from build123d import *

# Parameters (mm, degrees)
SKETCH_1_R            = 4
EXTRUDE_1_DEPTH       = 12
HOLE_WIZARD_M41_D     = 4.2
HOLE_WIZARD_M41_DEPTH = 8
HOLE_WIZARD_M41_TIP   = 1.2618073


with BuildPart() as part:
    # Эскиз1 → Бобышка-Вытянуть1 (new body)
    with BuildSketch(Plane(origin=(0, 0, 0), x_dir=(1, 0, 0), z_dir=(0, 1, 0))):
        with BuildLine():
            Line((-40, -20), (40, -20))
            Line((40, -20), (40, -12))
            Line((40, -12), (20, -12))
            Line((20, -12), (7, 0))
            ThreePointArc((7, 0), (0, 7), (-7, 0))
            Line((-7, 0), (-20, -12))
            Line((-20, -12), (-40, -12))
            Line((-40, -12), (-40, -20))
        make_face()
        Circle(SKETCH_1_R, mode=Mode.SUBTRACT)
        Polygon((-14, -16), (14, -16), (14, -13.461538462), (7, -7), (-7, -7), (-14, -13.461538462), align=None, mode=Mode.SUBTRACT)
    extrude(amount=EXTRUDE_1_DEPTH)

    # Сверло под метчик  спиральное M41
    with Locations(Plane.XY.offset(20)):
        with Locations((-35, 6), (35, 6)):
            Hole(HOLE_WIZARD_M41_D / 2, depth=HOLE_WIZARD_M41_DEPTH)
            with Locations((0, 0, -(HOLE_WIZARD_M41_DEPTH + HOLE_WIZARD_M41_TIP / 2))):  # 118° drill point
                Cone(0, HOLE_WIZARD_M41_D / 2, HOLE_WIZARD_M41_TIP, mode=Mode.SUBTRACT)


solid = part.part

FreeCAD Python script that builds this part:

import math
import FreeCAD as App
import Part
import Sketcher

V = App.Vector
Q = App.Units.Quantity

doc = App.newDocument("Part")
body = doc.addObject("PartDesign::Body", "Body")

sketch1 = doc.addObject("Sketcher::SketchObject", "Sketch")
body.addObject(sketch1)
sketch1.AttachmentSupport = (doc.XZ_Plane, [""])
sketch1.MapMode = "FlatFace"
sketch1.addGeometry([
    Part.LineSegment(V(-40, 20, 0), V(40, 20, 0)),
    Part.LineSegment(V(40, 20, 0), V(40, 12, 0)),
    Part.LineSegment(V(40, 12, 0), V(20, 12, 0)),
    Part.LineSegment(V(20, 12, 0), V(7, 0, 0)),
    Part.ArcOfCircle(Part.Circle(V(0, 0, 0), V(0, 0, 1), 7), math.radians(180), math.radians(360)),
    Part.LineSegment(V(-7, 0, 0), V(-20, 12, 0)),
    Part.LineSegment(V(-20, 12, 0), V(-40, 12, 0)),
    Part.LineSegment(V(-40, 12, 0), V(-40, 20, 0)),
    Part.LineSegment(V(14, 16, 0), V(-14, 16, 0)),
    Part.LineSegment(V(-14, 16, 0), V(-14, 13.5, 0)),
    Part.LineSegment(V(-14, 13.5, 0), V(-7, 7, 0)),
    Part.LineSegment(V(-7, 7, 0), V(7, 7, 0)),
    Part.LineSegment(V(7, 7, 0), V(14, 13.5, 0)),
    Part.LineSegment(V(14, 13.5, 0), V(14, 16, 0)),
    Part.Circle(V(0, 0, 0), V(0, 0, 1), 4),
], False)
sketch1.addConstraint([
    Sketcher.Constraint("Coincident", 0, 2, 1, 1),
    Sketcher.Constraint("Coincident", 1, 2, 2, 1),
    Sketcher.Constraint("Coincident", 2, 2, 3, 1),
    Sketcher.Constraint("Coincident", 3, 2, 4, 2),
    Sketcher.Constraint("Coincident", 4, 1, 5, 1),
    Sketcher.Constraint("Coincident", 5, 2, 6, 1),
    Sketcher.Constraint("Coincident", 6, 2, 7, 1),
    Sketcher.Constraint("Coincident", 7, 2, 0, 1),
    Sketcher.Constraint("Coincident", 8, 2, 9, 1),
    Sketcher.Constraint("Coincident", 9, 2, 10, 1),
    Sketcher.Constraint("Coincident", 10, 2, 11, 1),
    Sketcher.Constraint("Coincident", 11, 2, 12, 1),
    Sketcher.Constraint("Coincident", 12, 2, 13, 1),
    Sketcher.Constraint("Coincident", 13, 2, 8, 1),
    Sketcher.Constraint("Horizontal", 0),
    Sketcher.Constraint("Vertical", 1),
    Sketcher.Constraint("Horizontal", 2),
    Sketcher.Constraint("Horizontal", 6),
    Sketcher.Constraint("Vertical", 7),
    Sketcher.Constraint("Horizontal", 8),
    Sketcher.Constraint("Vertical", 9),
    Sketcher.Constraint("Horizontal", 11),
    Sketcher.Constraint("Vertical", 13),
    Sketcher.Constraint("Coincident", 4, 3, -1, 1),
    Sketcher.Constraint("Coincident", 14, 3, -1, 1),
    Sketcher.Constraint("Symmetric", 2, 2, 5, 2, -2),
    Sketcher.Constraint("Symmetric", 9, 2, 12, 2, -2),
    Sketcher.Constraint("PointOnObject", 3, 2, -1),
    Sketcher.Constraint("PointOnObject", 4, 1, -1),
    Sketcher.Constraint("Parallel", 5, 10),
    Sketcher.Constraint("Parallel", 3, 12),
    Sketcher.Constraint("Vertical", 4, 1, 10, 2),
    Sketcher.Constraint("Equal", 2, 6),
    Sketcher.Constraint("Diameter", 14, Q("8 mm")),
    Sketcher.Constraint("Radius", 4, Q("7 mm")),
    Sketcher.Constraint("DistanceX", 0, 1, 0, 2, Q("80 mm")),
    Sketcher.Constraint("DistanceX", 2, 2, 2, 1, Q("20 mm")),
    Sketcher.Constraint("DistanceX", 8, 2, 8, 1, Q("28 mm")),
    Sketcher.Constraint("DistanceY", 1, 2, 1, 1, Q("8 mm")),
    Sketcher.Constraint("DistanceY", -1, 1, 0, 2, Q("20 mm")),
    Sketcher.Constraint("DistanceY", -1, 1, 8, 2, Q("16 mm")),
    Sketcher.Constraint("DistanceY", -1, 1, 10, 2, Q("7 mm")),
])
pad1 = doc.addObject("PartDesign::Pad", "Pad")
body.addObject(pad1)
pad1.Profile = sketch1
pad1.Length = 12
pad1.Reversed = True

sketch2 = doc.addObject("Sketcher::SketchObject", "Sketch001")
body.addObject(sketch2)
sketch2.AttachmentSupport = (doc.XY_Plane, [""])
sketch2.MapMode = "FlatFace"
sketch2.AttachmentOffset = App.Placement(V(0, 0, 20), App.Rotation())
sketch2.addGeometry([
    Part.Circle(V(-35, 6, 0), V(0, 0, 1), 2.1),
    Part.Circle(V(35, 6, 0), V(0, 0, 1), 2.1),
], False)
sketch2.addConstraint([
    Sketcher.Constraint("Equal", 0, 1),
    Sketcher.Constraint("Symmetric", 0, 3, 1, 3, -2),
    Sketcher.Constraint("Diameter", 0, Q("4.2 mm")),
    Sketcher.Constraint("DistanceX", 0, 3, -1, 1, Q("35 mm")),
    Sketcher.Constraint("DistanceY", -1, 1, 0, 3, Q("6 mm")),
])
doc.recompute()
hole = doc.addObject("PartDesign::Hole", "Hole")
body.addObject(hole)
hole.Profile = sketch2
hole.ThreadType = "None"
hole.Diameter = 4.2
hole.DepthType = "Dimension"
hole.Depth = 8
hole.DrillPoint = "Angled"
hole.DrillPointAngle = 118

doc.recompute()
